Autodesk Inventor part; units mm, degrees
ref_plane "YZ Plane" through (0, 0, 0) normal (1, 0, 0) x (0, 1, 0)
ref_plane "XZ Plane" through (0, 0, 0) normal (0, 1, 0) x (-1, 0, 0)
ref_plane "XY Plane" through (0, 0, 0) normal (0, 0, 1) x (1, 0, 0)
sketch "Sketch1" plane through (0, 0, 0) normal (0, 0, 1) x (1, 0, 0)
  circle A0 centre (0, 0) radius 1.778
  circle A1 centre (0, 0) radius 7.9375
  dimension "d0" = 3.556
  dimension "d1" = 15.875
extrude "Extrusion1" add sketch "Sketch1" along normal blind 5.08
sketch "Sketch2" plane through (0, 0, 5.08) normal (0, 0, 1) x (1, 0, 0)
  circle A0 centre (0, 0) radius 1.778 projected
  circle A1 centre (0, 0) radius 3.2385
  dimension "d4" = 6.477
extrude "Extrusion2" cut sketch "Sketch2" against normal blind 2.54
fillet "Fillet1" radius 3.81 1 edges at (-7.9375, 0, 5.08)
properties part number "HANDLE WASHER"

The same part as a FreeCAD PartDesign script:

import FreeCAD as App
import Part
import Sketcher
Q = App.Units.Quantity


def edges_at(feature, points):
    """Names of the edges that pass closest to the given points."""
    edges = feature.Shape.Edges
    near = lambda p: min(range(len(edges)), key=lambda i: edges[i].distToShape(Part.Vertex(*p))[0])
    return sorted({f"Edge{near(p) + 1}" for p in points})

doc = App.newDocument("Part")
body = doc.addObject("PartDesign::Body", "Body")

# Sketch on XY plane
sketch1 = body.newObject("Sketcher::SketchObject", "Sketch")
sketch1.AttachmentSupport = (doc.getObject("XY_Plane"), [""])
sketch1.MapMode = "FlatFace"
sketch1.addGeometry(Part.Circle(App.Vector(0, 0, 0), App.Vector(0, 0, 1), 7.9), False)
sketch1.addGeometry(Part.Circle(App.Vector(0, 0, 0), App.Vector(0, 0, 1), 1.8), False)
sketch1.addConstraint(Sketcher.Constraint("Coincident", 0, 3, -1, 1))
sketch1.addConstraint(Sketcher.Constraint("Coincident", 1, 3, -1, 1))
sketch1.addConstraint(Sketcher.Constraint("Diameter", 1, Q("0.14 in")))
sketch1.addConstraint(Sketcher.Constraint("Diameter", 0, Q("0.625 in")))
pad1 = body.newObject("PartDesign::Pad", "Pad")
pad1.Profile = sketch1
pad1.Length = Q("0.2 in")

# Sketch on XY plane
sketch2 = body.newObject("Sketcher::SketchObject", "Sketch001")
sketch2.AttachmentSupport = (doc.getObject("XY_Plane"), [""])
sketch2.MapMode = "FlatFace"
sketch2.AttachmentOffset = App.Placement(App.Vector(0, 0, 0.2 * 25.4), App.Rotation())
sketch2.addGeometry(Part.Circle(App.Vector(0, 0, 0), App.Vector(0, 0, 1), 3.2), False)
sketch2.addGeometry(Part.Circle(App.Vector(0, 0, 0), App.Vector(0, 0, 1), 1.8), False)
sketch2.addConstraint(Sketcher.Constraint("Coincident", 0, 3, -1, 1))
sketch2.addConstraint(Sketcher.Constraint("Coincident", 1, 3, -1, 1))
sketch2.addConstraint(Sketcher.Constraint("Diameter", 0, Q("0.255 in")))
sketch2.addConstraint(Sketcher.Constraint("Diameter", 1, Q("0.14 in")))
pocket1 = body.newObject("PartDesign::Pocket", "Pocket")
pocket1.Profile = sketch2
pocket1.Length = Q("0.1 in")
doc.recompute()

fillet = body.newObject("PartDesign::Fillet", "Fillet")
fillet.Base = (pocket1, edges_at(pocket1, [(-7.938, 0, 5.08)]))
fillet.Radius = Q("0.15 in")

doc.recompute()
